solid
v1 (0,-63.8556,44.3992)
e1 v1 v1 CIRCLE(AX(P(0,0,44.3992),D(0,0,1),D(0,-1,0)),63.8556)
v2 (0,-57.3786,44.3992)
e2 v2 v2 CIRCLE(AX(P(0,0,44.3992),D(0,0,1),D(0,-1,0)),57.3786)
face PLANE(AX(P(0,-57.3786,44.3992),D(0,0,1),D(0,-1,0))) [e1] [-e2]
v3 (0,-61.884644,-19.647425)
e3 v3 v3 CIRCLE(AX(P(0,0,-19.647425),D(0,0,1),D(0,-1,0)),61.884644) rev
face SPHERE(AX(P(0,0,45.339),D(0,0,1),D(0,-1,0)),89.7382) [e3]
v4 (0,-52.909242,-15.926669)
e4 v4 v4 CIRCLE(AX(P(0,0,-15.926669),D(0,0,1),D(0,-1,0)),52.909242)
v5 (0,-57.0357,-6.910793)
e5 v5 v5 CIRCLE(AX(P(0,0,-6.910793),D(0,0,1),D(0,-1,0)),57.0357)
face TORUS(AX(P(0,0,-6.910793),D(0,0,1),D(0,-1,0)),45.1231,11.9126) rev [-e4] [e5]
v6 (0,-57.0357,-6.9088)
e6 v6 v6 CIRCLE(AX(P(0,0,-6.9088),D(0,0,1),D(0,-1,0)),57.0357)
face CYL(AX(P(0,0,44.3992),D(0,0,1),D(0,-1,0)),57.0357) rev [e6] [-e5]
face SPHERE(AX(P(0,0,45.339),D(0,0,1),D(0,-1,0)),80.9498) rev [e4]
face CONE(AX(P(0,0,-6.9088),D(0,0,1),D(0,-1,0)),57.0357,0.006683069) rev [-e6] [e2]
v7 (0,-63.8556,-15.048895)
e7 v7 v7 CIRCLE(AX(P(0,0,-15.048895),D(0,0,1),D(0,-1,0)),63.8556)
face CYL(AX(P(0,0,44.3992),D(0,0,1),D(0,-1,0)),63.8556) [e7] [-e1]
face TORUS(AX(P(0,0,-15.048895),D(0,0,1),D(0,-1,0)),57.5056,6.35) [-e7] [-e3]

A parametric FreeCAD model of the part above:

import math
import FreeCAD as App
import Part
import Sketcher
from FreeCAD import Vector
Q = App.Units.Quantity


def edges_at(feature, points):
    """Names of the edges that pass closest to the given points."""
    edges = feature.Shape.Edges
    near = lambda p: min(range(len(edges)), key=lambda i: edges[i].distToShape(Part.Vertex(*p))[0])
    return sorted({f"Edge{near(p) + 1}" for p in points})

doc = App.newDocument("Part")
params = doc.addObject("Spreadsheet::Sheet", "Params")
for row, (alias, value) in enumerate([
    ("sketch1_radius", "3.187 in"),
    ("sketch1_radius2", "0.469 in"),
    ("sketch1_radius3", "3.533 in"),
    ("sketch1_width", "0.255 in"),
    ("revolution_angle", "360 deg"),
    ("fillet_radius", "0.25 in"),
], start=1):
    params.set(f"A{row}", alias)
    params.set(f"B{row}", "=" + value)
    params.setAlias(f"B{row}", alias)

body = doc.addObject("PartDesign::Body", "Body")

sketch1 = body.newObject("Sketcher::SketchObject", "Sketch")
sketch1.AttachmentSupport = (doc.getObject("YZ_Plane"), [""])
sketch1.MapMode = "FlatFace"
sketch1.addGeometry([
    Part.LineSegment(Vector(0, -44.3992, 0), Vector(0, -35.6108, 0)),
    Part.ArcOfCircle(Part.Circle(Vector(0, 45.339, 0), Vector(0, 0, 1), 80.9498), math.radians(-131), math.radians(-90)),
    Part.ArcOfCircle(Part.Circle(Vector(-45.1231, -6.9108, 0), Vector(0, 0, 1), 11.9126), math.radians(180), math.radians(229)),
    Part.LineSegment(Vector(-57.0357, -6.9108, 0), Vector(-57.0357, -6.9088, 0)),
    Part.LineSegment(Vector(-57.0357, -6.9088, 0), Vector(-57.3786, 44.3992, 0)),
    Part.LineSegment(Vector(-57.3786, 44.3992, 0), Vector(-63.8556, 44.3992, 0)),
    Part.LineSegment(Vector(-63.8556, 44.3992, 0), Vector(-63.8556, -17.7118, 0)),
    Part.ArcOfCircle(Part.Circle(Vector(0, 45.339, 0), Vector(0, 0, 1), 89.7382), math.radians(-135), math.radians(-90)),
], False)
sketch1.addConstraint([
    Sketcher.Constraint("Coincident", 0, 2, 1, 2),
    Sketcher.Constraint("Tangent", 1, 1, 2, 2),
    Sketcher.Constraint("Tangent", 2, 1, 3, 1),
    Sketcher.Constraint("Coincident", 3, 2, 4, 1),
    Sketcher.Constraint("Coincident", 4, 2, 5, 1),
    Sketcher.Constraint("Coincident", 5, 2, 6, 1),
    Sketcher.Constraint("Coincident", 6, 2, 7, 1),
    Sketcher.Constraint("Coincident", 7, 2, 0, 1),
    Sketcher.Constraint("Vertical", 0),
    Sketcher.Constraint("Horizontal", 5),
    Sketcher.Constraint("Vertical", 6),
    Sketcher.Constraint("Coincident", 7, 3, 1, 3),
    Sketcher.Constraint("PointOnObject", 1, 3, -2),
    Sketcher.Constraint("PointOnObject", 0, 2, -2),
    Sketcher.Constraint("Radius", 1, Q("3.187 in")),
    Sketcher.Constraint("Radius", 2, Q("0.469 in")),
    Sketcher.Constraint("Radius", 7, Q("3.533 in")),
    Sketcher.Constraint("DistanceX", 5, 2, 5, 1, Q("0.255 in")),
    Sketcher.Constraint("DistanceY", 0, 2, 3, 2, Q("1.13 in")),
    Sketcher.Constraint("DistanceY", 3, 2, 4, 2, Q("2.02 in")),
    Sketcher.Constraint("DistanceY", -1, 1, 1, 3, Q("1.785 in")),
    Sketcher.Constraint("DistanceX", 4, 2, -1, 1, Q("2.259 in")),
    Sketcher.Constraint("DistanceX", 2, 3, -1, 1, Q("1.7765 in")),
    Sketcher.Constraint("DistanceY", 3, 1, 3, 2, 0.001993),
])
sketch1.setExpression("Constraints[14]", "Params.sketch1_radius")
sketch1.setExpression("Constraints[15]", "Params.sketch1_radius2")
sketch1.setExpression("Constraints[16]", "Params.sketch1_radius3")
sketch1.setExpression("Constraints[17]", "Params.sketch1_width")
revolution = body.newObject("PartDesign::Revolution", "Revolution")
revolution.Profile = sketch1
revolution.ReferenceAxis = (sketch1, ["V_Axis"])
revolution.setExpression("Angle", "Params.revolution_angle")
doc.recompute()

fillet = body.newObject("PartDesign::Fillet", "Fillet")
fillet.Base = (revolution, edges_at(revolution, [(0, 63.856, -17.712)]))
fillet.setExpression("Radius", "Params.fillet_radius")

doc.recompute()
